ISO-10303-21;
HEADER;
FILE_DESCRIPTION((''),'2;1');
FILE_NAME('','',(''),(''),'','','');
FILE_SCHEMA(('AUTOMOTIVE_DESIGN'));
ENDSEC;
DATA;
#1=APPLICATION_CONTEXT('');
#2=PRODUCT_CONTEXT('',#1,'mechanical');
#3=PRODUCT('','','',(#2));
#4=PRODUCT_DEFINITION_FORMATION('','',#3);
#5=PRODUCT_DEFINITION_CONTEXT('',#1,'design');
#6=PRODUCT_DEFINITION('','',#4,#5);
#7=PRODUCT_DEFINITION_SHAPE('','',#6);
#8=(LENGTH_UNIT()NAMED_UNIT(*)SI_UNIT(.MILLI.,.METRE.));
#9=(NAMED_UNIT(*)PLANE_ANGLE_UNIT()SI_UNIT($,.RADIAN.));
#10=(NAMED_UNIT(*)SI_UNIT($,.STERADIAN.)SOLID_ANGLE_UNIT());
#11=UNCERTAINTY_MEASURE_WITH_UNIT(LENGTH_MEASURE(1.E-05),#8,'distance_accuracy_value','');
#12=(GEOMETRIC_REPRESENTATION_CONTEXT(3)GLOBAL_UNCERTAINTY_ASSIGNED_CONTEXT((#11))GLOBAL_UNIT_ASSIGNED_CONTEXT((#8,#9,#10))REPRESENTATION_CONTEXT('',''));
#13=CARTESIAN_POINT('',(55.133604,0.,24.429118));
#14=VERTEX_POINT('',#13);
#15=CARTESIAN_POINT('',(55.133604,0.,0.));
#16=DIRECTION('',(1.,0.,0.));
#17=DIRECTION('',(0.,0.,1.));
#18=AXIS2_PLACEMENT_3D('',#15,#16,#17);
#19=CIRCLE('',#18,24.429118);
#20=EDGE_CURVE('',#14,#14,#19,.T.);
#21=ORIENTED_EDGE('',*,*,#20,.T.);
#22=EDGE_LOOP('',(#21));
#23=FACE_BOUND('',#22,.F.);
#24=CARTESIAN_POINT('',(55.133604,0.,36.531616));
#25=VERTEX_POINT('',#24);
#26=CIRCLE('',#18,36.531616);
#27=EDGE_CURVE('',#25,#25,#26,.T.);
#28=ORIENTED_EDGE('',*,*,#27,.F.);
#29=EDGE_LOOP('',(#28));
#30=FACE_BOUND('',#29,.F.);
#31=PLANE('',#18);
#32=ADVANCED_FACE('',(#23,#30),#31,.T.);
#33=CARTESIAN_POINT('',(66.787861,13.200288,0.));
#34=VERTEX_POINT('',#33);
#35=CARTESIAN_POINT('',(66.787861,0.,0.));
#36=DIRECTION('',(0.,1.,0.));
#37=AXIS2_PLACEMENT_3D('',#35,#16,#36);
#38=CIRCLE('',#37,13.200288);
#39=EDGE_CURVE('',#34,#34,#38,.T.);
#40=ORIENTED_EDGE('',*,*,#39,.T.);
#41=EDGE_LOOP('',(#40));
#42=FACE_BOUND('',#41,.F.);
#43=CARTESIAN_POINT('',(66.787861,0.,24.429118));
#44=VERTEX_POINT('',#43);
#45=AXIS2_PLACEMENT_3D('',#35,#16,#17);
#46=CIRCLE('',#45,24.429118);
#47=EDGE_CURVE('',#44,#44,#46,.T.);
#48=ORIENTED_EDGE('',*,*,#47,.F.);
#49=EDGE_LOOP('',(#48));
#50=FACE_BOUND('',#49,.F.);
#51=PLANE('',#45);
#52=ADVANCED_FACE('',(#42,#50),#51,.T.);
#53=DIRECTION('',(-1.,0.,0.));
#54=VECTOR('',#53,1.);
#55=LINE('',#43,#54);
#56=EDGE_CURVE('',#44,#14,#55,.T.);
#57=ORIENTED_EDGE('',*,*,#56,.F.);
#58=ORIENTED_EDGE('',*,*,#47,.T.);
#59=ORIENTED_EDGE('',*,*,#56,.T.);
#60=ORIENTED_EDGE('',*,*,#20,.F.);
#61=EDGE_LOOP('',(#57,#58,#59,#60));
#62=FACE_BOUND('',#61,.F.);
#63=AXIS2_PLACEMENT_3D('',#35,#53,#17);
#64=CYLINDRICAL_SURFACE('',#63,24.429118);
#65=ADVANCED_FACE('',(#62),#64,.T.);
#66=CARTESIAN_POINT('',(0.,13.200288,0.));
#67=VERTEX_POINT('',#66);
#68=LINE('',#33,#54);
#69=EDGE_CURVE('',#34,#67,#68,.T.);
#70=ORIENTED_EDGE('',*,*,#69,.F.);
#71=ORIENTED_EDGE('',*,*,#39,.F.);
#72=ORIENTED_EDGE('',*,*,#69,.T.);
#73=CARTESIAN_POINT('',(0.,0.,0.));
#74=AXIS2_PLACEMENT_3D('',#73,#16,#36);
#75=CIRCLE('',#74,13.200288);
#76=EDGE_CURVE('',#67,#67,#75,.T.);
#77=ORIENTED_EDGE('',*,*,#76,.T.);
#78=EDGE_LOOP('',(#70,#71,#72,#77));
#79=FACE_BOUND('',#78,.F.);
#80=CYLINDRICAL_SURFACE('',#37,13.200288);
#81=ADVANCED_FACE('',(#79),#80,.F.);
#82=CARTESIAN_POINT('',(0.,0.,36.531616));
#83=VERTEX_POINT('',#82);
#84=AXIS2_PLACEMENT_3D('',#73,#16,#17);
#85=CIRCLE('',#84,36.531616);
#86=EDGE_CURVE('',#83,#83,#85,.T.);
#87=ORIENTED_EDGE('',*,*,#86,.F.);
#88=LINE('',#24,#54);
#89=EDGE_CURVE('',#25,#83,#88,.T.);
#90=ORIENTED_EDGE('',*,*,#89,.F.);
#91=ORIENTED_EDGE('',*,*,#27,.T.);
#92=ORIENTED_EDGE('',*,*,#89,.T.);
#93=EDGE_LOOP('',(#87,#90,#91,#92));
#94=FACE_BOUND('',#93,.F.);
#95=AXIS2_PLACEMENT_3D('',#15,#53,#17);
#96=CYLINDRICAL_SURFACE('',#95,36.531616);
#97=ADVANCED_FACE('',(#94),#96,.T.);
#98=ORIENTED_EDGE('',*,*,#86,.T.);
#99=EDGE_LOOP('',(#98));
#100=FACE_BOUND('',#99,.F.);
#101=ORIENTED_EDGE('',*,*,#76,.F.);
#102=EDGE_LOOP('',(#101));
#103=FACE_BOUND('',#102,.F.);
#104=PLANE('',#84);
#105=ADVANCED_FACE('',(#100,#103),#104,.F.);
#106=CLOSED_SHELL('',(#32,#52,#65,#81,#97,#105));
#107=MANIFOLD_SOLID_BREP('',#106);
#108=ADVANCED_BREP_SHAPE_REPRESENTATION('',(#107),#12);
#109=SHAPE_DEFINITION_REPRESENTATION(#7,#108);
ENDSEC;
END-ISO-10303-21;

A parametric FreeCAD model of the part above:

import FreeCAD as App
import Part
import Sketcher
Q = App.Units.Quantity

doc = App.newDocument("Part")
body = doc.addObject("PartDesign::Body", "Body")

sketch1 = body.newObject("Sketcher::SketchObject", "Sketch")
sketch1.AttachmentSupport = (doc.getObject("XZ_Plane"), [""])
sketch1.MapMode = "FlatFace"
sketch1.addGeometry(Part.LineSegment(App.Vector(0, 37, 0), App.Vector(0, 0, 0)), False)
sketch1.addGeometry(Part.LineSegment(App.Vector(0, 0, 0), App.Vector(67, 0, 0)), False)
sketch1.addGeometry(Part.LineSegment(App.Vector(67, 0, 0), App.Vector(67, 24, 0)), False)
sketch1.addGeometry(Part.LineSegment(App.Vector(67, 24, 0), App.Vector(55, 24, 0)), False)
sketch1.addGeometry(Part.LineSegment(App.Vector(55, 24, 0), App.Vector(55, 37, 0)), False)
sketch1.addGeometry(Part.LineSegment(App.Vector(55, 37, 0), App.Vector(0, 37, 0)), False)
sketch1.addConstraint(Sketcher.Constraint("Coincident", 0, 2, 1, 1))
sketch1.addConstraint(Sketcher.Constraint("Coincident", 1, 2, 2, 1))
sketch1.addConstraint(Sketcher.Constraint("Coincident", 2, 2, 3, 1))
sketch1.addConstraint(Sketcher.Constraint("Coincident", 3, 2, 4, 1))
sketch1.addConstraint(Sketcher.Constraint("Coincident", 4, 2, 5, 1))
sketch1.addConstraint(Sketcher.Constraint("Coincident", 5, 2, 0, 1))
sketch1.addConstraint(Sketcher.Constraint("Vertical", 0))
sketch1.addConstraint(Sketcher.Constraint("Horizontal", 1))
sketch1.addConstraint(Sketcher.Constraint("Vertical", 2))
sketch1.addConstraint(Sketcher.Constraint("Horizontal", 3))
sketch1.addConstraint(Sketcher.Constraint("Vertical", 4))
sketch1.addConstraint(Sketcher.Constraint("Horizontal", 5))
sketch1.addConstraint(Sketcher.Constraint("Coincident", 0, 2, -1, 1))
sketch1.addConstraint(Sketcher.Constraint("DistanceY", 4, 1, 4, 2, Q("12.102498 mm")))
sketch1.addConstraint(Sketcher.Constraint("DistanceX", 1, 1, 1, 2, Q("66.787861 mm")))
sketch1.addConstraint(Sketcher.Constraint("DistanceX", 3, 2, 3, 1, Q("11.654257 mm")))
sketch1.addConstraint(Sketcher.Constraint("DistanceY", 0, 2, 0, 1, Q("36.531616 mm")))
revolution = body.newObject("PartDesign::Revolution", "Revolution")
revolution.Profile = sketch1
revolution.ReferenceAxis = (sketch1, ["H_Axis"])
revolution.Angle = 360

sketch2 = body.newObject("Sketcher::SketchObject", "Sketch001")
sketch2.AttachmentSupport = (doc.getObject("YZ_Plane"), [""])
sketch2.MapMode = "FlatFace"
sketch2.AttachmentOffset = App.Placement(App.Vector(0, 0, 66.787861), App.Rotation())
sketch2.addGeometry(Part.Circle(App.Vector(0, 0, 0), App.Vector(0, 0, 1), 13), False)
sketch2.addConstraint(Sketcher.Constraint("Coincident", 0, 3, -1, 1))
sketch2.addConstraint(Sketcher.Constraint("Diameter", 0, Q("26.400576 mm")))
pocket1 = body.newObject("PartDesign::Pocket", "Pocket")
pocket1.Profile = sketch2
pocket1.Type = "ThroughAll"

doc.recompute()
